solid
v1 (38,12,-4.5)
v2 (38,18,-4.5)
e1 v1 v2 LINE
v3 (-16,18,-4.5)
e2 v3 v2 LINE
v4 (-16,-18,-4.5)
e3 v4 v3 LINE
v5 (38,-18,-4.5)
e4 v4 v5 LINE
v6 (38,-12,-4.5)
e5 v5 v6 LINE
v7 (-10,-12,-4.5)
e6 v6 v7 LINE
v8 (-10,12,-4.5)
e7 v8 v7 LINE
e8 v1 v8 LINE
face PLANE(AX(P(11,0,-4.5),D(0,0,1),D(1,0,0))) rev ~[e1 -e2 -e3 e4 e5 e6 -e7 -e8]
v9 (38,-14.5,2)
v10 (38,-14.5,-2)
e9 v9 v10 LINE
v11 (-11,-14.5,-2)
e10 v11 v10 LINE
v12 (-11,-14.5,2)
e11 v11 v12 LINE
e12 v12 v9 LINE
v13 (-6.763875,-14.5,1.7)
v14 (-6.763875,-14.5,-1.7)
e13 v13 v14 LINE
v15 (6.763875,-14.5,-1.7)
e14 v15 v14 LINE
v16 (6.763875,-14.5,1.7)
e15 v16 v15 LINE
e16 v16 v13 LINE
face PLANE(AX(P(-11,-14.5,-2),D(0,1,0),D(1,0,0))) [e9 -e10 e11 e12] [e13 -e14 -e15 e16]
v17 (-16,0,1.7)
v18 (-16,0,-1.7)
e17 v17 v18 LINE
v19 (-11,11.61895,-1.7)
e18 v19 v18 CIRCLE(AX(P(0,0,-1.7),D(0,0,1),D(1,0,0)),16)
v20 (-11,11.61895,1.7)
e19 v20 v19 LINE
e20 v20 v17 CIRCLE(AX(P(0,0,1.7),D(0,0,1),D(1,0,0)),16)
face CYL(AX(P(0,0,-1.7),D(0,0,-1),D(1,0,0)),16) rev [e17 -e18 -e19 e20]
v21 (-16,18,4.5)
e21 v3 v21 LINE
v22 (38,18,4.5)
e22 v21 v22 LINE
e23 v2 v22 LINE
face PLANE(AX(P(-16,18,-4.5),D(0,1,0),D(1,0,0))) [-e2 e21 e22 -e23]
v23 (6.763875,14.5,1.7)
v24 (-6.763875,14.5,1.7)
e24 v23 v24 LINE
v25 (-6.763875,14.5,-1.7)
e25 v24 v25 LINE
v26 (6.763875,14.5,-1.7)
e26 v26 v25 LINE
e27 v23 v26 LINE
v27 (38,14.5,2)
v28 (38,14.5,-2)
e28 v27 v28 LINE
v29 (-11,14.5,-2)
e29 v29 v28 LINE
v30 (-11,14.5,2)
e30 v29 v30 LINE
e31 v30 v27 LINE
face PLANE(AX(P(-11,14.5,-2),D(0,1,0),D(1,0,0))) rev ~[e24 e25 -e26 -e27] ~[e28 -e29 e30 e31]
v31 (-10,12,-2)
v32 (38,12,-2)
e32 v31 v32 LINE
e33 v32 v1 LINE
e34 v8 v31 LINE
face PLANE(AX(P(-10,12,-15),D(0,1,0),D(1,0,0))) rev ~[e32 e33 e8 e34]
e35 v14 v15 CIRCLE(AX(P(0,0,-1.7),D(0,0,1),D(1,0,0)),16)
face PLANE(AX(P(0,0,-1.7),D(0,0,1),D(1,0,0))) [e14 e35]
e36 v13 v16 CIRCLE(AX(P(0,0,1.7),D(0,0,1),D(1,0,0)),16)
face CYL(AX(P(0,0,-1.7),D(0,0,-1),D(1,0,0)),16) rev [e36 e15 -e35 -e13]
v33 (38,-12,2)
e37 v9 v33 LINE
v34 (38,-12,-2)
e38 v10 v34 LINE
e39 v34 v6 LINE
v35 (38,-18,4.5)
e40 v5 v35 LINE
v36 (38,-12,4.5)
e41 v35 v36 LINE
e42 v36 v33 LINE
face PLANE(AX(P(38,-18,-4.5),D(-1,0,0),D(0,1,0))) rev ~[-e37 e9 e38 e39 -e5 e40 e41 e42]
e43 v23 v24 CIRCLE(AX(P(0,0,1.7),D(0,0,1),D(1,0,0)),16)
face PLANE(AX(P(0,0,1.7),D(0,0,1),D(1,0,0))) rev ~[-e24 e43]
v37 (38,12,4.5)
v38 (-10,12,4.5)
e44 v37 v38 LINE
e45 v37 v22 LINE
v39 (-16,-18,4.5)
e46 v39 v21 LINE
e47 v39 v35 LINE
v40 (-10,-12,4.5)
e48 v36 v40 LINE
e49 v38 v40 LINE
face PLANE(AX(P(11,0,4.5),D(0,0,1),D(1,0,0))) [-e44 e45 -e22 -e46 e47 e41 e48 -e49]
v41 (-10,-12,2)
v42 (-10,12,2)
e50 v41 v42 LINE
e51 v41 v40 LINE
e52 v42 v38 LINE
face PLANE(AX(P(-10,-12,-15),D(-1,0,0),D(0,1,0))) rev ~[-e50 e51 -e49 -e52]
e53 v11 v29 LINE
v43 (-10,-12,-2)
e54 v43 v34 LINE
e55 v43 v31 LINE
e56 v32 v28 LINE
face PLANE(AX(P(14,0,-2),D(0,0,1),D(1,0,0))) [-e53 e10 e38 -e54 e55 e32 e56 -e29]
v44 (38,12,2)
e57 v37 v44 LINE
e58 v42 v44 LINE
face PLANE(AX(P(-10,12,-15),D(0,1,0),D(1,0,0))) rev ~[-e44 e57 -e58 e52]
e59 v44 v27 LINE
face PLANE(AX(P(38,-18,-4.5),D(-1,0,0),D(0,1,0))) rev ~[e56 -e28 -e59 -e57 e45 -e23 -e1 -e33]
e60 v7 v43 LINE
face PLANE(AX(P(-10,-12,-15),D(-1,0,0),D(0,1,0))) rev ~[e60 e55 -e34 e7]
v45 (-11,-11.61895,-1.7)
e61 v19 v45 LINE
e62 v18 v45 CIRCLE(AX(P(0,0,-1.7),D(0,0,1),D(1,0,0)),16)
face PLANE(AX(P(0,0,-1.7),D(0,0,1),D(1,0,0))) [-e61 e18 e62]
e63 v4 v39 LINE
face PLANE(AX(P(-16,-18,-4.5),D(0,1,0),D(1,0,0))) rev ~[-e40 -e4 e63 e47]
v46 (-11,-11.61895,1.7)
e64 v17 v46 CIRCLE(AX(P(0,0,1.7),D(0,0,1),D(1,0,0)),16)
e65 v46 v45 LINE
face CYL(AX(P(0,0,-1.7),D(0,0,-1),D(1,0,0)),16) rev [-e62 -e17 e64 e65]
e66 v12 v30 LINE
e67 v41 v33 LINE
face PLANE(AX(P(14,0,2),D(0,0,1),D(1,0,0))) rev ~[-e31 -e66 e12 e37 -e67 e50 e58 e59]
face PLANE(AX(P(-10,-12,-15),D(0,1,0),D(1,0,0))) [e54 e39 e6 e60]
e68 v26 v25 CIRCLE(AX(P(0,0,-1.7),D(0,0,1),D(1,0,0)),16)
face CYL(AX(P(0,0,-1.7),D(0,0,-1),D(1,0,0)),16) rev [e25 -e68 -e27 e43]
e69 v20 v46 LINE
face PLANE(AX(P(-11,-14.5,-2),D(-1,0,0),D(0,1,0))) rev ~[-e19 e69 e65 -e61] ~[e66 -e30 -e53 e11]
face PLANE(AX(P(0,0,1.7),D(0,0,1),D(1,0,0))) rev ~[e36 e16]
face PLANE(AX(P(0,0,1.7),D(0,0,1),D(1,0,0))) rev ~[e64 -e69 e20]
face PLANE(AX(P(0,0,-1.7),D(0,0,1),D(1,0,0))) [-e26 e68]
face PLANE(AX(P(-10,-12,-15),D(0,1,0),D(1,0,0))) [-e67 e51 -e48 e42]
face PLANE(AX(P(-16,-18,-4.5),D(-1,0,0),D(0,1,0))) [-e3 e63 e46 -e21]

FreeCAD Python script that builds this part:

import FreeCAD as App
import Part
import Sketcher
Q = App.Units.Quantity

doc = App.newDocument("Part")
body = doc.addObject("PartDesign::Body", "Body")

# Sketch on XY plane
sketch1 = doc.addObject("Sketcher::SketchObject", "Sketch")
body.addObject(sketch1)
sketch1.AttachmentSupport = (doc.XY_Plane, [""])
sketch1.MapMode = "FlatFace"
sketch1.AttachmentOffset = App.Placement(App.Vector(0, 0, -1.7), App.Rotation())
sketch1.addGeometry(Part.Circle(App.Vector(0, 0, 0), App.Vector(0, 0, 1), 16), False)
sketch1.addConstraint(Sketcher.Constraint("Coincident", 0, 3, -1, 1))
sketch1.addConstraint(Sketcher.Constraint("Diameter", 0, Q("32 mm")))
pad1 = doc.addObject("PartDesign::Pad", "Pad")
body.addObject(pad1)
pad1.Profile = sketch1
pad1.Length = 3.4
body2 = doc.addObject("PartDesign::Body", "Body001")

# Sketch on XY plane
sketch2 = doc.addObject("Sketcher::SketchObject", "Sketch001")
body2.addObject(sketch2)
sketch2.AttachmentSupport = (doc.getObject("XY_Plane001"), [""])
sketch2.MapMode = "FlatFace"
sketch2.AttachmentOffset = App.Placement(App.Vector(0, 0, -2), App.Rotation())
sketch2.addGeometry(Part.LineSegment(App.Vector(-11, 14.5, 0), App.Vector(-11, -14.5, 0)), False)
sketch2.addGeometry(Part.LineSegment(App.Vector(-11, -14.5, 0), App.Vector(39, -14.5, 0)), False)
sketch2.addGeometry(Part.LineSegment(App.Vector(39, -14.5, 0), App.Vector(39, 14.5, 0)), False)
sketch2.addGeometry(Part.LineSegment(App.Vector(39, 14.5, 0), App.Vector(-11, 14.5, 0)), False)
sketch2.addConstraint(Sketcher.Constraint("Coincident", 0, 2, 1, 1))
sketch2.addConstraint(Sketcher.Constraint("Coincident", 1, 2, 2, 1))
sketch2.addConstraint(Sketcher.Constraint("Coincident", 2, 2, 3, 1))
sketch2.addConstraint(Sketcher.Constraint("Coincident", 3, 2, 0, 1))
sketch2.addConstraint(Sketcher.Constraint("Vertical", 0))
sketch2.addConstraint(Sketcher.Constraint("Horizontal", 1))
sketch2.addConstraint(Sketcher.Constraint("Vertical", 2))
sketch2.addConstraint(Sketcher.Constraint("Horizontal", 3))
sketch2.addConstraint(Sketcher.Constraint("DistanceX", 1, 1, 1, 2, Q("50 mm")))
sketch2.addConstraint(Sketcher.Constraint("DistanceY", 0, 2, 0, 1, Q("29 mm")))
sketch2.addConstraint(Sketcher.Constraint("DistanceX", 0, 2, -1, 1, Q("11 mm")))
sketch2.addConstraint(Sketcher.Constraint("DistanceY", 0, 2, -1, 1, Q("14.5 mm")))
pad2 = doc.addObject("PartDesign::Pad", "Pad001")
body2.addObject(pad2)
pad2.Profile = sketch2
pad2.Length = 4
body3 = doc.addObject("PartDesign::Body", "Body002")

# Sketch on XY plane
sketch3 = doc.addObject("Sketcher::SketchObject", "Sketch002")
body3.addObject(sketch3)
sketch3.AttachmentSupport = (doc.getObject("XY_Plane002"), [""])
sketch3.MapMode = "FlatFace"
sketch3.AttachmentOffset = App.Placement(App.Vector(0, 0, -15), App.Rotation())
sketch3.addGeometry(Part.LineSegment(App.Vector(-10, 12, 0), App.Vector(-10, -12, 0)), False)
sketch3.addGeometry(Part.LineSegment(App.Vector(-10, -12, 0), App.Vector(48, -12, 0)), False)
sketch3.addGeometry(Part.LineSegment(App.Vector(48, -12, 0), App.Vector(48, 12, 0)), False)
sketch3.addGeometry(Part.LineSegment(App.Vector(48, 12, 0), App.Vector(-10, 12, 0)), False)
sketch3.addConstraint(Sketcher.Constraint("Coincident", 0, 2, 1, 1))
sketch3.addConstraint(Sketcher.Constraint("Coincident", 1, 2, 2, 1))
sketch3.addConstraint(Sketcher.Constraint("Coincident", 2, 2, 3, 1))
sketch3.addConstraint(Sketcher.Constraint("Coincident", 3, 2, 0, 1))
sketch3.addConstraint(Sketcher.Constraint("Vertical", 0))
sketch3.addConstraint(Sketcher.Constraint("Horizontal", 1))
sketch3.addConstraint(Sketcher.Constraint("Vertical", 2))
sketch3.addConstraint(Sketcher.Constraint("Horizontal", 3))
sketch3.addConstraint(Sketcher.Constraint("DistanceX", 1, 1, 1, 2, Q("58 mm")))
sketch3.addConstraint(Sketcher.Constraint("DistanceY", 0, 2, 0, 1, Q("24 mm")))
sketch3.addConstraint(Sketcher.Constraint("DistanceX", 0, 2, -1, 1, Q("10 mm")))
sketch3.addConstraint(Sketcher.Constraint("DistanceY", 0, 2, -1, 1, Q("12 mm")))
pad3 = doc.addObject("PartDesign::Pad", "Pad002")
body3.addObject(pad3)
pad3.Profile = sketch3
pad3.Length = 30
doc.recompute()

boolean = doc.addObject("PartDesign::Boolean", "Boolean")
body3.addObject(boolean)
boolean.Type = "Fuse"
boolean.addObjects([body])
doc.recompute()

boolean2 = doc.addObject("PartDesign::Boolean", "Boolean001")
body3.addObject(boolean2)
boolean2.Type = "Fuse"
boolean2.addObjects([body2])
body4 = doc.addObject("PartDesign::Body", "Body003")

# Sketch on XY plane
sketch4 = doc.addObject("Sketcher::SketchObject", "Sketch003")
body4.addObject(sketch4)
sketch4.AttachmentSupport = (doc.getObject("XY_Plane003"), [""])
sketch4.MapMode = "FlatFace"
sketch4.AttachmentOffset = App.Placement(App.Vector(0, 0, -4.5), App.Rotation())
sketch4.addGeometry(Part.LineSegment(App.Vector(-16, 18, 0), App.Vector(-16, -18, 0)), False)
sketch4.addGeometry(Part.LineSegment(App.Vector(-16, -18, 0), App.Vector(38, -18, 0)), False)
sketch4.addGeometry(Part.LineSegment(App.Vector(38, -18, 0), App.Vector(38, 18, 0)), False)
sketch4.addGeometry(Part.LineSegment(App.Vector(38, 18, 0), App.Vector(-16, 18, 0)), False)
sketch4.addConstraint(Sketcher.Constraint("Coincident", 0, 2, 1, 1))
sketch4.addConstraint(Sketcher.Constraint("Coincident", 1, 2, 2, 1))
sketch4.addConstraint(Sketcher.Constraint("Coincident", 2, 2, 3, 1))
sketch4.addConstraint(Sketcher.Constraint("Coincident", 3, 2, 0, 1))
sketch4.addConstraint(Sketcher.Constraint("Vertical", 0))
sketch4.addConstraint(Sketcher.Constraint("Horizontal", 1))
sketch4.addConstraint(Sketcher.Constraint("Vertical", 2))
sketch4.addConstraint(Sketcher.Constraint("Horizontal", 3))
sketch4.addConstraint(Sketcher.Constraint("DistanceX", 1, 1, 1, 2, Q("54 mm")))
sketch4.addConstraint(Sketcher.Constraint("DistanceY", 0, 2, 0, 1, Q("36 mm")))
sketch4.addConstraint(Sketcher.Constraint("DistanceX", 0, 2, -1, 1, Q("16 mm")))
sketch4.addConstraint(Sketcher.Constraint("DistanceY", 0, 2, -1, 1, Q("18 mm")))
pad4 = doc.addObject("PartDesign::Pad", "Pad003")
body4.addObject(pad4)
pad4.Profile = sketch4
pad4.Length = 9
doc.recompute()

boolean3 = doc.addObject("PartDesign::Boolean", "Boolean002")
body4.addObject(boolean3)
boolean3.Type = "Cut"
boolean3.addObjects([body3])

doc.recompute()
